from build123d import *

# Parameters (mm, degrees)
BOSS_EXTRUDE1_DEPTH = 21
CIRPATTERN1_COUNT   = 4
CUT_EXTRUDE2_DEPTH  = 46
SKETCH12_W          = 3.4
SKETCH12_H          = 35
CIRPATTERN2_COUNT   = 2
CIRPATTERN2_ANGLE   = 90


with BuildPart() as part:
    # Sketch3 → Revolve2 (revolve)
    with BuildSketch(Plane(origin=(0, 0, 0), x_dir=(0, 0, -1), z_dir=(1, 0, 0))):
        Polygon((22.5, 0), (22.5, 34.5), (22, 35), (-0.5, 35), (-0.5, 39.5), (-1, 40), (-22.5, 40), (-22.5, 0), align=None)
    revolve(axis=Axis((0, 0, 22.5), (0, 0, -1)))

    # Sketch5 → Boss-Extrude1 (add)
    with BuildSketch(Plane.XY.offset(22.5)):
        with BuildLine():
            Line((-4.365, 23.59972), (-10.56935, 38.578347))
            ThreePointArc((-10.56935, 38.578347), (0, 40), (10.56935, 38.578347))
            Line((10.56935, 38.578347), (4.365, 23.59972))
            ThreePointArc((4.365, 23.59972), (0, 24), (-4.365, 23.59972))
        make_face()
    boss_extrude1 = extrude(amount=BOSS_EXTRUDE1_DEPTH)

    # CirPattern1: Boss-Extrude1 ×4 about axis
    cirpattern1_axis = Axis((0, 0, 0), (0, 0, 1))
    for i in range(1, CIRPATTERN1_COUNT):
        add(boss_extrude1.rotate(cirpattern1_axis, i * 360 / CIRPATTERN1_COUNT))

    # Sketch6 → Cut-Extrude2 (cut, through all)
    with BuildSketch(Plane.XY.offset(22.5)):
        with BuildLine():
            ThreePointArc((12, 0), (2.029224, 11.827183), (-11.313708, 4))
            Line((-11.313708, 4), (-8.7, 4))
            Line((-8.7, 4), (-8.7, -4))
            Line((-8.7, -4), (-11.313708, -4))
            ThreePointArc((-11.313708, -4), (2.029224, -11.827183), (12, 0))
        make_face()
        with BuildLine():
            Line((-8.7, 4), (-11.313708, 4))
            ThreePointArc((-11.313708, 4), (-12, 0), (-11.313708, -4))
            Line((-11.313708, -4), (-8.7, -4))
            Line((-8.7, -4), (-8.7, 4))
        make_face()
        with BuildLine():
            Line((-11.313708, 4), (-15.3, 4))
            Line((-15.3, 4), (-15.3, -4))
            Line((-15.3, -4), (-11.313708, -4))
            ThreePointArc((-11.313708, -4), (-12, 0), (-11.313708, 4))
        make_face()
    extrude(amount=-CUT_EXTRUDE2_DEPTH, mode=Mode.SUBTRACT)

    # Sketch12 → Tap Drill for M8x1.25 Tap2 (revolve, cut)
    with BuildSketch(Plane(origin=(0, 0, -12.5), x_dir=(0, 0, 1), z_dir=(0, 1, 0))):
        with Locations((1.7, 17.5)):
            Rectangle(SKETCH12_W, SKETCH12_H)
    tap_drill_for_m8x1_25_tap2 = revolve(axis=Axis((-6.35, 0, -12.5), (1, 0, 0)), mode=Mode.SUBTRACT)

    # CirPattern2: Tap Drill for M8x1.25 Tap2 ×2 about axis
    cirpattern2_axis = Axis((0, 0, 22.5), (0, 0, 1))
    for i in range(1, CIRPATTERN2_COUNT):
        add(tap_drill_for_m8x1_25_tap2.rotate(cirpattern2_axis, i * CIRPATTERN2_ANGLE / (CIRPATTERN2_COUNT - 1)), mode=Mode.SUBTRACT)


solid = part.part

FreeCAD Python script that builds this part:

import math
import FreeCAD as App
import Part
import Sketcher
from FreeCAD import Vector
Q = App.Units.Quantity

doc = App.newDocument("Part")
body = doc.addObject("PartDesign::Body", "Body")

# Sketch on YZ plane
sketch1 = body.newObject("Sketcher::SketchObject", "Sketch")
sketch1.AttachmentSupport = (doc.getObject("YZ_Plane"), [""])
sketch1.MapMode = "FlatFace"
sketch1.addGeometry(Part.LineSegment(Vector(0, -22.5, 0), Vector(34.5, -22.5, 0)), False)
sketch1.addGeometry(Part.LineSegment(Vector(34.5, -22.5, 0), Vector(35, -22, 0)), False)
sketch1.addGeometry(Part.LineSegment(Vector(35, -22, 0), Vector(35, 0.5, 0)), False)
sketch1.addGeometry(Part.LineSegment(Vector(35, 0.5, 0), Vector(39.5, 0.5, 0)), False)
sketch1.addGeometry(Part.LineSegment(Vector(39.5, 0.5, 0), Vector(40, 1, 0)), False)
sketch1.addGeometry(Part.LineSegment(Vector(40, 1, 0), Vector(40, 22.5, 0)), False)
sketch1.addGeometry(Part.LineSegment(Vector(40, 22.5, 0), Vector(0, 22.5, 0)), False)
sketch1.addGeometry(Part.LineSegment(Vector(0, 22.5, 0), Vector(0, -22.5, 0)), False)
sketch1.addConstraint(Sketcher.Constraint("Coincident", 0, 2, 1, 1))
sketch1.addConstraint(Sketcher.Constraint("Coincident", 1, 2, 2, 1))
sketch1.addConstraint(Sketcher.Constraint("Coincident", 2, 2, 3, 1))
sketch1.addConstraint(Sketcher.Constraint("Coincident", 3, 2, 4, 1))
sketch1.addConstraint(Sketcher.Constraint("Coincident", 4, 2, 5, 1))
sketch1.addConstraint(Sketcher.Constraint("Coincident", 5, 2, 6, 1))
sketch1.addConstraint(Sketcher.Constraint("Coincident", 6, 2, 7, 1))
sketch1.addConstraint(Sketcher.Constraint("Coincident", 7, 2, 0, 1))
sketch1.addConstraint(Sketcher.Constraint("Horizontal", 0))
sketch1.addConstraint(Sketcher.Constraint("Vertical", 2))
sketch1.addConstraint(Sketcher.Constraint("Horizontal", 3))
sketch1.addConstraint(Sketcher.Constraint("Vertical", 5))
sketch1.addConstraint(Sketcher.Constraint("Horizontal", 6))
sketch1.addConstraint(Sketcher.Constraint("Vertical", 7))
sketch1.addConstraint(Sketcher.Constraint("Symmetric", 6, 2, 7, 2, -1, 1))
sketch1.addConstraint(Sketcher.Constraint("Parallel", 1, 4))
sketch1.addConstraint(Sketcher.Constraint("Equal", 1, 4))
sketch1.addConstraint(Sketcher.Constraint("DistanceX", 6, 2, 6, 1, 40.0))
sketch1.addConstraint(Sketcher.Constraint("DistanceY", 7, 2, 7, 1, 45.0))
sketch1.addConstraint(Sketcher.Constraint("Angle", 1, Q("45 deg")))
sketch1.addConstraint(Sketcher.Constraint("DistanceX", 0, 1, 0, 2, 34.5))
sketch1.addConstraint(Sketcher.Constraint("DistanceX", 3, 1, 3, 2, 4.5))
sketch1.addConstraint(Sketcher.Constraint("DistanceY", 2, 1, 2, 2, 22.5))
revolution = body.newObject("PartDesign::Revolution", "Revolution")
revolution.Profile = sketch1
revolution.ReferenceAxis = (sketch1, ["V_Axis"])
revolution.Angle = 360

# Sketch on XY plane
sketch2 = body.newObject("Sketcher::SketchObject", "Sketch001")
sketch2.AttachmentSupport = (doc.getObject("XY_Plane"), [""])
sketch2.MapMode = "FlatFace"
sketch2.AttachmentOffset = App.Placement(Vector(0, 0, 22.5), App.Rotation())
sketch2.addGeometry(Part.LineSegment(Vector(-10.56935, 38.578347, 0), Vector(-4.365, 23.59972, 0)), False)
sketch2.addGeometry(Part.ArcOfCircle(Part.Circle(Vector(0, -0.000011, 0), Vector(0, 0, 1), 24.000011), math.radians(79.521013), math.radians(100.478987)), False)
sketch2.addGeometry(Part.LineSegment(Vector(4.365, 23.59972, 0), Vector(10.56935, 38.578347, 0)), False)
sketch2.addGeometry(Part.ArcOfCircle(Part.Circle(Vector(0, -0.000006, 0), Vector(0, 0, 1), 40.000006), math.radians(74.678575), math.radians(105.321425)), False)
sketch2.addConstraint(Sketcher.Constraint("Coincident", 0, 2, 1, 2))
sketch2.addConstraint(Sketcher.Constraint("Coincident", 1, 1, 2, 1))
sketch2.addConstraint(Sketcher.Constraint("Coincident", 2, 2, 3, 1))
sketch2.addConstraint(Sketcher.Constraint("Coincident", 3, 2, 0, 1))
sketch2.addConstraint(Sketcher.Constraint("Coincident", 3, 3, -1, 1))
sketch2.addConstraint(Sketcher.Constraint("Coincident", 3, 3, 1, 3))
sketch2.addConstraint(Sketcher.Constraint("Horizontal", 0, 2, 1, 1))
sketch2.addConstraint(Sketcher.Constraint("Horizontal", 2, 2, 3, 2))
sketch2.addConstraint(Sketcher.Constraint("Angle", 0, Q("-67.500001 deg")))
sketch2.addConstraint(Sketcher.Constraint("Radius", 1, 24.000011))
sketch2.addConstraint(Sketcher.Constraint("DistanceX", 0, 2, 1, 1, 8.73))
sketch2.addConstraint(Sketcher.Constraint("Radius", 3, 40.000006))
pad1 = body.newObject("PartDesign::Pad", "Pad")
pad1.Profile = sketch2
pad1.Length = 21
doc.recompute()

polarpattern = body.newObject("PartDesign::PolarPattern", "PolarPattern")
polarpattern.Originals = [pad1]
polarpattern.Axis = (doc.getObject("Z_Axis"), [""])
polarpattern.Angle = 360
polarpattern.Occurrences = 4
body.Tip = polarpattern

# Sketch on XY plane
sketch3 = body.newObject("Sketcher::SketchObject", "Sketch002")
sketch3.AttachmentSupport = (doc.getObject("XY_Plane"), [""])
sketch3.MapMode = "FlatFace"
sketch3.AttachmentOffset = App.Placement(Vector(0, 0, 22.5), App.Rotation())
sketch3.addGeometry(Part.ArcOfCircle(Part.Circle(Vector(0, 0.000001, 0), Vector(0, 0, 1), 12), math.radians(-0.000003), math.radians(160.528782)), False)
sketch3.addGeometry(Part.LineSegment(Vector(-11.313708, 4, 0), Vector(-15.3, 4, 0)), False)
sketch3.addGeometry(Part.LineSegment(Vector(-15.3, 4, 0), Vector(-15.3, -4, 0)), False)
sketch3.addGeometry(Part.LineSegment(Vector(-15.3, -4, 0), Vector(-11.313708, -4, 0)), False)
sketch3.addGeometry(Part.ArcOfCircle(Part.Circle(Vector(0, -0.000001, 0), Vector(0, 0, 1), 12), math.radians(-160.528782), math.radians(0.000003)), False)
sketch3.addConstraint(Sketcher.Constraint("Coincident", 0, 2, 1, 1))
sketch3.addConstraint(Sketcher.Constraint("Coincident", 1, 2, 2, 1))
sketch3.addConstraint(Sketcher.Constraint("Coincident", 2, 2, 3, 1))
sketch3.addConstraint(Sketcher.Constraint("Coincident", 3, 2, 4, 1))
sketch3.addConstraint(Sketcher.Constraint("Tangent", 4, 2, 0, 1))
sketch3.addConstraint(Sketcher.Constraint("Horizontal", 1))
sketch3.addConstraint(Sketcher.Constraint("Vertical", 2))
sketch3.addConstraint(Sketcher.Constraint("Horizontal", 3))
sketch3.addConstraint(Sketcher.Constraint("Coincident", 0, 3, -1, 1))
sketch3.addConstraint(Sketcher.Constraint("Equal", 0, 4))
sketch3.addConstraint(Sketcher.Constraint("PointOnObject", 4, 2, -1))
sketch3.addConstraint(Sketcher.Constraint("Vertical", 0, 2, 3, 2))
sketch3.addConstraint(Sketcher.Constraint("Radius", 0, 12.0))
sketch3.addConstraint(Sketcher.Constraint("DistanceY", 2, 2, 2, 1, 8.0))
sketch3.addConstraint(Sketcher.Constraint("DistanceX", 1, 2, -1, 1, 15.3))
pocket1 = body.newObject("PartDesign::Pocket", "Pocket")
pocket1.Profile = sketch3
pocket1.Type = "ThroughAll"

# Sketch on XZ plane
sketch4 = body.newObject("Sketcher::SketchObject", "Sketch003")
sketch4.AttachmentSupport = (doc.getObject("XZ_Plane"), [""])
sketch4.MapMode = "FlatFace"
sketch4.addGeometry(Part.LineSegment(Vector(35, -12.5, 0), Vector(0, -12.5, 0)), False)
sketch4.addGeometry(Part.LineSegment(Vector(0, -12.5, 0), Vector(0, -9.1, 0)), False)
sketch4.addGeometry(Part.LineSegment(Vector(0, -9.1, 0), Vector(35, -9.1, 0)), False)
sketch4.addGeometry(Part.LineSegment(Vector(35, -9.1, 0), Vector(35, -12.5, 0)), False)
sketch4.addGeometry(Part.LineSegment(Vector(0, -12.5, 0), Vector(35, -12.5, 0)), True)  # axis
sketch4.addConstraint(Sketcher.Constraint("Coincident", 0, 2, 1, 1))
sketch4.addConstraint(Sketcher.Constraint("Coincident", 1, 2, 2, 1))
sketch4.addConstraint(Sketcher.Constraint("Coincident", 2, 2, 3, 1))
sketch4.addConstraint(Sketcher.Constraint("Coincident", 3, 2, 0, 1))
sketch4.addConstraint(Sketcher.Constraint("Horizontal", 0))
sketch4.addConstraint(Sketcher.Constraint("Vertical", 1))
sketch4.addConstraint(Sketcher.Constraint("Horizontal", 2))
sketch4.addConstraint(Sketcher.Constraint("Vertical", 3))
sketch4.addConstraint(Sketcher.Constraint("Horizontal", 4))
sketch4.addConstraint(Sketcher.Constraint("Coincident", 4, 1, 0, 2))
sketch4.addConstraint(Sketcher.Constraint("PointOnObject", 0, 2, -2))
sketch4.addConstraint(Sketcher.Constraint("Vertical", 2, 2, 4, 2))
sketch4.addConstraint(Sketcher.Constraint("DistanceX", 0, 2, 0, 1, 35.0))
sketch4.addConstraint(Sketcher.Constraint("DistanceY", 1, 1, 1, 2, 3.4))
sketch4.addConstraint(Sketcher.Constraint("DistanceY", 0, 2, -1, 1, 12.5))
groove = body.newObject("PartDesign::Groove", "Groove")
groove.Profile = sketch4
groove.ReferenceAxis = (sketch4, ["Axis0"])
groove.Angle = 360
doc.recompute()

polarpattern2 = body.newObject("PartDesign::PolarPattern", "PolarPattern001")
polarpattern2.Originals = [groove]
polarpattern2.Axis = (doc.getObject("Z_Axis"), [""])
polarpattern2.Angle = 90
polarpattern2.Occurrences = 2
body.Tip = polarpattern2

doc.recompute()
